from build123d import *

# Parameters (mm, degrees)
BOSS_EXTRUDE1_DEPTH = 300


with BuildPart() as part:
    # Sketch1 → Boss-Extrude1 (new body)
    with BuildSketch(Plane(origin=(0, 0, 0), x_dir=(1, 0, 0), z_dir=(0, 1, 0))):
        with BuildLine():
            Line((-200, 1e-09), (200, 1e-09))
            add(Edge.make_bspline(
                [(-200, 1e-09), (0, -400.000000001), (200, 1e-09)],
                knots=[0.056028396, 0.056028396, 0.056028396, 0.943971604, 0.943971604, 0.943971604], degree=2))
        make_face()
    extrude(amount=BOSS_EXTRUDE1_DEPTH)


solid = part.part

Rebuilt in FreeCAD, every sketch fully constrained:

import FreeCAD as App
import Part
import Sketcher

V = App.Vector

doc = App.newDocument("Part")
params = doc.addObject("Spreadsheet::Sheet", "Params")
for row, (alias, value) in enumerate([
    ("pad1_length", "300 mm"),
], start=1):
    params.set(f"A{row}", alias)
    params.set(f"B{row}", "=" + value)
    params.setAlias(f"B{row}", alias)

body = doc.addObject("PartDesign::Body", "Body")

sketch1 = body.newObject("Sketcher::SketchObject", "Sketch")
sketch1.AttachmentSupport = (doc.getObject("XZ_Plane"), [""])
sketch1.MapMode = "FlatFace"
sketch1.addGeometry([
    Part.LineSegment(V(200, 0, 0), V(-200, 0, 0)),
    Part.BSplineCurve([V(-200, 0, 0), V(0, 400, 0), V(200, 0, 0)], [3, 3], [0.056028396, 0.943971604], False, 2, [1, 1, 1], False),
], False)
sketch1.addConstraint([
    Sketcher.Constraint("Block", 1),
    Sketcher.Constraint("Coincident", 0, 1, 1, 2),
    Sketcher.Constraint("Coincident", 1, 1, 0, 2),
])
pad1 = body.newObject("PartDesign::Pad", "Pad")
pad1.Profile = sketch1
pad1.setExpression("Length", "Params.pad1_length")
pad1.Reversed = True

doc.recompute()
